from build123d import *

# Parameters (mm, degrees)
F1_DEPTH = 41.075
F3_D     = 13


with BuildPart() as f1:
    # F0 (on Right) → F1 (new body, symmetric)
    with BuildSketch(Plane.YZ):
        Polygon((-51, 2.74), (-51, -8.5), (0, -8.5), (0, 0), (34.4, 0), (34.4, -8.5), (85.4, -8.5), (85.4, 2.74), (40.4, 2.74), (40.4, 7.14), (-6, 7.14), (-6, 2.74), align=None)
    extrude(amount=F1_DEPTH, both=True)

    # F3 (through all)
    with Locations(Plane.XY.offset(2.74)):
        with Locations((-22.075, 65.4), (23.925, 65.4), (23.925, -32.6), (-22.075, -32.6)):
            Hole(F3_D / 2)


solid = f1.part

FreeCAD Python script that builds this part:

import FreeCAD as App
import Part
import Sketcher

doc = App.newDocument("Part")
body = doc.addObject("PartDesign::Body", "Body")

# Sketch on YZ plane
sketch1 = body.newObject("Sketcher::SketchObject", "Sketch")
sketch1.AttachmentSupport = (doc.getObject("YZ_Plane"), [""])
sketch1.MapMode = "FlatFace"
sketch1.addGeometry(Part.LineSegment(App.Vector(-51, 2.7, 0), App.Vector(-51, -8.5, 0)), False)
sketch1.addGeometry(Part.LineSegment(App.Vector(-51, -8.5, 0), App.Vector(0, -8.5, 0)), False)
sketch1.addGeometry(Part.LineSegment(App.Vector(0, -8.5, 0), App.Vector(0, 0, 0)), False)
sketch1.addGeometry(Part.LineSegment(App.Vector(0, 0, 0), App.Vector(34.4, 0, 0)), False)
sketch1.addGeometry(Part.LineSegment(App.Vector(34.4, 0, 0), App.Vector(34.4, -8.5, 0)), False)
sketch1.addGeometry(Part.LineSegment(App.Vector(34.4, -8.5, 0), App.Vector(85.4, -8.5, 0)), False)
sketch1.addGeometry(Part.LineSegment(App.Vector(85.4, -8.5, 0), App.Vector(85.4, 2.7, 0)), False)
sketch1.addGeometry(Part.LineSegment(App.Vector(85.4, 2.7, 0), App.Vector(40.4, 2.7, 0)), False)
sketch1.addGeometry(Part.LineSegment(App.Vector(40.4, 2.7, 0), App.Vector(40.4, 7.1, 0)), False)
sketch1.addGeometry(Part.LineSegment(App.Vector(40.4, 7.1, 0), App.Vector(-6, 7.1, 0)), False)
sketch1.addGeometry(Part.LineSegment(App.Vector(-6, 7.1, 0), App.Vector(-6, 2.7, 0)), False)
sketch1.addGeometry(Part.LineSegment(App.Vector(-6, 2.7, 0), App.Vector(-51, 2.7, 0)), False)
sketch1.addConstraint(Sketcher.Constraint("Coincident", 0, 2, 1, 1))
sketch1.addConstraint(Sketcher.Constraint("Coincident", 1, 2, 2, 1))
sketch1.addConstraint(Sketcher.Constraint("Coincident", 2, 2, 3, 1))
sketch1.addConstraint(Sketcher.Constraint("Coincident", 3, 2, 4, 1))
sketch1.addConstraint(Sketcher.Constraint("Coincident", 4, 2, 5, 1))
sketch1.addConstraint(Sketcher.Constraint("Coincident", 5, 2, 6, 1))
sketch1.addConstraint(Sketcher.Constraint("Coincident", 6, 2, 7, 1))
sketch1.addConstraint(Sketcher.Constraint("Coincident", 7, 2, 8, 1))
sketch1.addConstraint(Sketcher.Constraint("Coincident", 8, 2, 9, 1))
sketch1.addConstraint(Sketcher.Constraint("Coincident", 9, 2, 10, 1))
sketch1.addConstraint(Sketcher.Constraint("Coincident", 10, 2, 11, 1))
sketch1.addConstraint(Sketcher.Constraint("Coincident", 11, 2, 0, 1))
sketch1.addConstraint(Sketcher.Constraint("Vertical", 0))
sketch1.addConstraint(Sketcher.Constraint("Horizontal", 1))
sketch1.addConstraint(Sketcher.Constraint("Vertical", 2))
sketch1.addConstraint(Sketcher.Constraint("Horizontal", 3))
sketch1.addConstraint(Sketcher.Constraint("Vertical", 4))
sketch1.addConstraint(Sketcher.Constraint("Horizontal", 5))
sketch1.addConstraint(Sketcher.Constraint("Vertical", 6))
sketch1.addConstraint(Sketcher.Constraint("Horizontal", 7))
sketch1.addConstraint(Sketcher.Constraint("Vertical", 8))
sketch1.addConstraint(Sketcher.Constraint("Horizontal", 9))
sketch1.addConstraint(Sketcher.Constraint("Vertical", 10))
sketch1.addConstraint(Sketcher.Constraint("Horizontal", 11))
sketch1.addConstraint(Sketcher.Constraint("Coincident", 2, 2, -1, 1))
sketch1.addConstraint(Sketcher.Constraint("Horizontal", 1, 2, 4, 2))
sketch1.addConstraint(Sketcher.Constraint("Horizontal", 7, 2, 10, 2))
sketch1.addConstraint(Sketcher.Constraint("Equal", 1, 5))
sketch1.addConstraint(Sketcher.Constraint("Equal", 7, 11))
sketch1.addConstraint(Sketcher.Constraint("DistanceX", 1, 1, 1, 2, 51.0))
sketch1.addConstraint(Sketcher.Constraint("DistanceX", 7, 2, 7, 1, 45.0))
sketch1.addConstraint(Sketcher.Constraint("DistanceX", 3, 1, 3, 2, 34.4))
sketch1.addConstraint(Sketcher.Constraint("DistanceY", 2, 1, 2, 2, 8.5))
sketch1.addConstraint(Sketcher.Constraint("DistanceY", 8, 1, 8, 2, 4.4))
sketch1.addConstraint(Sketcher.Constraint("DistanceY", 0, 2, 0, 1, 11.24))
pad1 = body.newObject("PartDesign::Pad", "Pad")
pad1.Profile = sketch1
pad1.Length = 82.15
pad1.Midplane = True

# Sketch on XY plane
sketch2 = body.newObject("Sketcher::SketchObject", "Sketch001")
sketch2.AttachmentSupport = (doc.getObject("XY_Plane"), [""])
sketch2.MapMode = "FlatFace"
sketch2.AttachmentOffset = App.Placement(App.Vector(0, 0, 2.74), App.Rotation())
sketch2.addGeometry(Part.Circle(App.Vector(-22, 65, 0), App.Vector(0, 0, 1), 6), False)
sketch2.addGeometry(Part.Circle(App.Vector(24, 65, 0), App.Vector(0, 0, 1), 6), False)
sketch2.addGeometry(Part.Circle(App.Vector(24, -33, 0), App.Vector(0, 0, 1), 6), False)
sketch2.addGeometry(Part.Circle(App.Vector(-22, -33, 0), App.Vector(0, 0, 1), 6), False)
sketch2.addConstraint(Sketcher.Constraint("Equal", 0, 1))
sketch2.addConstraint(Sketcher.Constraint("Equal", 1, 2))
sketch2.addConstraint(Sketcher.Constraint("Equal", 2, 3))
sketch2.addConstraint(Sketcher.Constraint("Horizontal", 0, 3, 1, 3))
sketch2.addConstraint(Sketcher.Constraint("Horizontal", 2, 3, 3, 3))
sketch2.addConstraint(Sketcher.Constraint("Vertical", 1, 3, 2, 3))
sketch2.addConstraint(Sketcher.Constraint("Vertical", 0, 3, 3, 3))
sketch2.addConstraint(Sketcher.Constraint("Diameter", 0, 13.0))
sketch2.addConstraint(Sketcher.Constraint("DistanceX", 0, 3, 1, 3, 46.0))
sketch2.addConstraint(Sketcher.Constraint("DistanceY", 2, 3, 1, 3, 98.0))
sketch2.addConstraint(Sketcher.Constraint("DistanceY", -1, 1, 0, 3, 65.4))
sketch2.addConstraint(Sketcher.Constraint("DistanceX", 0, 3, -1, 1, 22.075))
doc.recompute()
hole = body.newObject("PartDesign::Hole", "Hole")
hole.Profile = sketch2
hole.ThreadType = "None"
hole.Diameter = 13
hole.DepthType = "ThroughAll"

doc.recompute()
